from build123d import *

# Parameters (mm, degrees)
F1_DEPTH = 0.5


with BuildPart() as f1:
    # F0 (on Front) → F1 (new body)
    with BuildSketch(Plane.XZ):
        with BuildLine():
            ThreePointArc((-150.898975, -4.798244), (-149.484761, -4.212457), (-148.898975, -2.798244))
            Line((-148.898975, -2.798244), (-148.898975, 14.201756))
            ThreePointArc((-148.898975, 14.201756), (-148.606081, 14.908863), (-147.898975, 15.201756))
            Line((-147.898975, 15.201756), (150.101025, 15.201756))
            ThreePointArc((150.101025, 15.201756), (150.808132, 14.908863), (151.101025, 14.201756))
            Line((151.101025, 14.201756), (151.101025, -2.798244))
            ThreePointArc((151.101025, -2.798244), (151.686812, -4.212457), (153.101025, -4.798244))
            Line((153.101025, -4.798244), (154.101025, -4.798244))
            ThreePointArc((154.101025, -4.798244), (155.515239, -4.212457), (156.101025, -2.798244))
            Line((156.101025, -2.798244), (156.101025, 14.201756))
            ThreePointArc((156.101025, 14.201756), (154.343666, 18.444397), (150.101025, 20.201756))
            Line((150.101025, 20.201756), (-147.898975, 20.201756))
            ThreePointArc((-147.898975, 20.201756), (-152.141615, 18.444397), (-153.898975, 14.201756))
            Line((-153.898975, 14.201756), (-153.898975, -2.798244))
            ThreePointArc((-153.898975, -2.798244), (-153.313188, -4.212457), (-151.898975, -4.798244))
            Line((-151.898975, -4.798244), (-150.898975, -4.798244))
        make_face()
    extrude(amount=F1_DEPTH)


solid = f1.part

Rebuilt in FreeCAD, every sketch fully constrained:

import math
import FreeCAD as App
import Part
import Sketcher
Q = App.Units.Quantity

doc = App.newDocument("Part")
params = doc.addObject("Spreadsheet::Sheet", "Params")
for row, (alias, value) in enumerate([
    ("sketch1_radius", "2 mm"),
    ("sketch1_radius2", "1.000001 mm"),
    ("sketch1_radius3", "5.999999 mm"),
    ("sketch1_width", "298 mm"),
    ("sketch1_height", "17 mm"),
    ("pad1_length", "0.5 mm"),
], start=1):
    params.set(f"A{row}", alias)
    params.set(f"B{row}", "=" + value)
    params.setAlias(f"B{row}", alias)

body = doc.addObject("PartDesign::Body", "Body")

# Sketch on XZ plane
sketch1 = body.newObject("Sketcher::SketchObject", "Sketch")
sketch1.AttachmentSupport = (doc.getObject("XZ_Plane"), [""])
sketch1.MapMode = "FlatFace"
sketch1.addGeometry([
    Part.ArcOfCircle(Part.Circle(App.Vector(-150.9, -2.8, 0), App.Vector(0, 0, 1), 2), math.radians(-90), math.radians(0)),  # 0
    Part.LineSegment(App.Vector(-148.9, -2.8, 0), App.Vector(-148.9, 14.2, 0)),  # 1
    Part.ArcOfCircle(Part.Circle(App.Vector(-147.9, 14.2, 0), App.Vector(0, 0, 1), 1), math.radians(90), math.radians(180)),  # 2
    Part.LineSegment(App.Vector(-147.9, 15.2, 0), App.Vector(150.1, 15.2, 0)),  # 3
    Part.ArcOfCircle(Part.Circle(App.Vector(150.1, 14.2, 0), App.Vector(0, 0, 1), 1), math.radians(0), math.radians(90)),  # 4
    Part.LineSegment(App.Vector(151.1, 14.2, 0), App.Vector(151.1, -2.8, 0)),  # 5
    Part.ArcOfCircle(Part.Circle(App.Vector(153.1, -2.8, 0), App.Vector(0, 0, 1), 2), math.radians(-180), math.radians(-90)),  # 6
    Part.LineSegment(App.Vector(153.1, -4.8, 0), App.Vector(154.1, -4.8, 0)),  # 7
    Part.ArcOfCircle(Part.Circle(App.Vector(154.1, -2.8, 0), App.Vector(0, 0, 1), 2), math.radians(-90), math.radians(0)),  # 8
    Part.LineSegment(App.Vector(156.1, -2.8, 0), App.Vector(156.1, 14.2, 0)),  # 9
    Part.ArcOfCircle(Part.Circle(App.Vector(150.1, 14.2, 0), App.Vector(0, 0, 1), 6), math.radians(0), math.radians(90)),  # 10
    Part.LineSegment(App.Vector(150.1, 20.2, 0), App.Vector(-147.9, 20.2, 0)),  # 11
    Part.ArcOfCircle(Part.Circle(App.Vector(-147.9, 14.2, 0), App.Vector(0, 0, 1), 6), math.radians(90), math.radians(180)),  # 12
    Part.LineSegment(App.Vector(-153.9, 14.2, 0), App.Vector(-153.9, -2.8, 0)),  # 13
    Part.ArcOfCircle(Part.Circle(App.Vector(-151.9, -2.8, 0), App.Vector(0, 0, 1), 2), math.radians(-180), math.radians(-90)),  # 14
    Part.LineSegment(App.Vector(-151.9, -4.8, 0), App.Vector(-150.9, -4.8, 0)),  # 15
], False)
sketch1.addConstraint([
    Sketcher.Constraint("Tangent", 0, 2, 1, 1),
    Sketcher.Constraint("Tangent", 1, 2, 2, 2),
    Sketcher.Constraint("Tangent", 2, 1, 3, 1),
    Sketcher.Constraint("Tangent", 3, 2, 4, 2),
    Sketcher.Constraint("Tangent", 4, 1, 5, 1),
    Sketcher.Constraint("Tangent", 5, 2, 6, 1),
    Sketcher.Constraint("Tangent", 6, 2, 7, 1),
    Sketcher.Constraint("Tangent", 7, 2, 8, 1),
    Sketcher.Constraint("Tangent", 8, 2, 9, 1),
    Sketcher.Constraint("Tangent", 9, 2, 10, 1),
    Sketcher.Constraint("Tangent", 10, 2, 11, 1),
    Sketcher.Constraint("Tangent", 11, 2, 12, 1),
    Sketcher.Constraint("Tangent", 12, 2, 13, 1),
    Sketcher.Constraint("Tangent", 13, 2, 14, 1),
    Sketcher.Constraint("Tangent", 14, 2, 15, 1),
    Sketcher.Constraint("Tangent", 15, 2, 0, 1),
    Sketcher.Constraint("Vertical", 1),
    Sketcher.Constraint("Horizontal", 3),
    Sketcher.Constraint("Vertical", 5),
    Sketcher.Constraint("Horizontal", 7),
    Sketcher.Constraint("Vertical", 9),
    Sketcher.Constraint("Horizontal", 11),
    Sketcher.Constraint("Vertical", 13),
    Sketcher.Constraint("Horizontal", 15),
    Sketcher.Constraint("Coincident", 10, 3, 4, 3),
    Sketcher.Constraint("Coincident", 12, 3, 2, 3),
    Sketcher.Constraint("Equal", 2, 4),
    Sketcher.Constraint("Equal", 0, 6),
    Sketcher.Constraint("Equal", 6, 8),
    Sketcher.Constraint("Equal", 8, 14),
    Sketcher.Constraint("Horizontal", 0, 3, 6, 3),
    Sketcher.Constraint("Radius", 0, Q("2 mm")),
    Sketcher.Constraint("Radius", 2, Q("1.000001 mm")),
    Sketcher.Constraint("Radius", 10, Q("5.999999 mm")),
    Sketcher.Constraint("DistanceX", 3, 1, 3, 2, Q("298 mm")),
    Sketcher.Constraint("DistanceY", 1, 1, 1, 2, Q("17 mm")),
    Sketcher.Constraint("DistanceX", 0, 3, -1, 1, Q("150.898975 mm")),
    Sketcher.Constraint("DistanceY", 0, 3, -1, 1, Q("2.798244 mm")),
])
sketch1.setExpression("Constraints[31]", "Params.sketch1_radius")
sketch1.setExpression("Constraints[32]", "Params.sketch1_radius2")
sketch1.setExpression("Constraints[33]", "Params.sketch1_radius3")
sketch1.setExpression("Constraints[34]", "Params.sketch1_width")
sketch1.setExpression("Constraints[35]", "Params.sketch1_height")
pad1 = body.newObject("PartDesign::Pad", "Pad")
pad1.Profile = sketch1
pad1.setExpression("Length", "Params.pad1_length")

doc.recompute()
